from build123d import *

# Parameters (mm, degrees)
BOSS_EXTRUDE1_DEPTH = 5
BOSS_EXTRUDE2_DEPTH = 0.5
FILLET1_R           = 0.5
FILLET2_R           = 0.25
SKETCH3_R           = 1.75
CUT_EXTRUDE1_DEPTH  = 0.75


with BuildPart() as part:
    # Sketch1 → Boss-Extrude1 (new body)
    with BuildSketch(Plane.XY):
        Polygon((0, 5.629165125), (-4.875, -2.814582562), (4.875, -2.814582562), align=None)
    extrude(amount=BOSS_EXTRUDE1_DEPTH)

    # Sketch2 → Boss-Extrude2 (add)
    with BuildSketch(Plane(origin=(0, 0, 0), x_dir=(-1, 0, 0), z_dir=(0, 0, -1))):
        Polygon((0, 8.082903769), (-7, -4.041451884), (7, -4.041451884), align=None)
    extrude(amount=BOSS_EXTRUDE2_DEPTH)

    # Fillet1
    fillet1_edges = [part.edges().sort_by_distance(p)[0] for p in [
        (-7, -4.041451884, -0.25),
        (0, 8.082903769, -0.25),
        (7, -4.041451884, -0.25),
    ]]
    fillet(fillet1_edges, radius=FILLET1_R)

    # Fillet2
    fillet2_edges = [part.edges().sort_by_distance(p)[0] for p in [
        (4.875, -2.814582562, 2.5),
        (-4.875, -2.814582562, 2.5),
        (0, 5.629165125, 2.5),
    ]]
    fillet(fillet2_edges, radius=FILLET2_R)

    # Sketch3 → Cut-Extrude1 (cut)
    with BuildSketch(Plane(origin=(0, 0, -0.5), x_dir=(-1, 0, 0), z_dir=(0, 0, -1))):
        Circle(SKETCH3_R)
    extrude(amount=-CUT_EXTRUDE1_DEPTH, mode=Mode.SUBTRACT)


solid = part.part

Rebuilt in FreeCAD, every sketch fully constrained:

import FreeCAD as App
import Part
import Sketcher
from FreeCAD import Vector
Q = App.Units.Quantity


def edges_at(feature, points):
    """Names of the edges that pass closest to the given points."""
    edges = feature.Shape.Edges
    near = lambda p: min(range(len(edges)), key=lambda i: edges[i].distToShape(Part.Vertex(*p))[0])
    return sorted({f"Edge{near(p) + 1}" for p in points})

doc = App.newDocument("Part")
params = doc.addObject("Spreadsheet::Sheet", "Params")
for row, (alias, value) in enumerate([
    ("sketch1_width", "9.75 mm"),
    ("pad1_length", "5 mm"),
    ("sketch2_width", "14 mm"),
    ("pad2_length", "0.5 mm"),
    ("fillet_radius", "0.5 mm"),
    ("fillet2_radius", "0.25 mm"),
    ("sketch3_diameter", "3.5 mm"),
    ("pocket1_length", "0.75 mm"),
], start=1):
    params.set(f"A{row}", alias)
    params.set(f"B{row}", "=" + value)
    params.setAlias(f"B{row}", alias)

body = doc.addObject("PartDesign::Body", "Body")

# Sketch on XY plane
sketch1 = doc.addObject("Sketcher::SketchObject", "Sketch")
body.addObject(sketch1)
sketch1.AttachmentSupport = (doc.XY_Plane, [""])
sketch1.MapMode = "FlatFace"
sketch1.addGeometry(Part.LineSegment(Vector(0, 6, 0), Vector(-5, -3, 0)), False)
sketch1.addGeometry(Part.LineSegment(Vector(-5, -3, 0), Vector(5, -3, 0)), False)
sketch1.addGeometry(Part.LineSegment(Vector(5, -3, 0), Vector(0, 6, 0)), False)
sketch1.addConstraint(Sketcher.Constraint("Coincident", 0, 2, 1, 1))
sketch1.addConstraint(Sketcher.Constraint("Coincident", 1, 2, 2, 1))
sketch1.addConstraint(Sketcher.Constraint("Coincident", 2, 2, 0, 1))
sketch1.addConstraint(Sketcher.Constraint("Horizontal", 1))
sketch1.addConstraint(Sketcher.Constraint("PointOnObject", 2, 2, -2))
sketch1.addConstraint(Sketcher.Constraint("Equal", 0, 2))
sketch1.addConstraint(Sketcher.Constraint("Angle", 0, Q("-120 deg")))
sketch1.addConstraint(Sketcher.Constraint("DistanceX", 1, 1, 1, 2, 9.75))
sketch1.addConstraint(Sketcher.Constraint("DistanceY", 0, 2, -1, 1, 2.814583))
sketch1.setExpression("Constraints[7]", "Params.sketch1_width")
pad1 = doc.addObject("PartDesign::Pad", "Pad")
body.addObject(pad1)
pad1.Profile = sketch1
pad1.setExpression("Length", "Params.pad1_length")

# Sketch on XY plane
sketch2 = doc.addObject("Sketcher::SketchObject", "Sketch001")
body.addObject(sketch2)
sketch2.AttachmentSupport = (doc.XY_Plane, [""])
sketch2.MapMode = "FlatFace"
sketch2.addGeometry(Part.LineSegment(Vector(0, 8, 0), Vector(7, -4, 0)), False)
sketch2.addGeometry(Part.LineSegment(Vector(7, -4, 0), Vector(-7, -4, 0)), False)
sketch2.addGeometry(Part.LineSegment(Vector(-7, -4, 0), Vector(0, 8, 0)), False)
sketch2.addConstraint(Sketcher.Constraint("Coincident", 0, 2, 1, 1))
sketch2.addConstraint(Sketcher.Constraint("Coincident", 1, 2, 2, 1))
sketch2.addConstraint(Sketcher.Constraint("Coincident", 2, 2, 0, 1))
sketch2.addConstraint(Sketcher.Constraint("Horizontal", 1))
sketch2.addConstraint(Sketcher.Constraint("PointOnObject", 2, 2, -2))
sketch2.addConstraint(Sketcher.Constraint("Equal", 0, 2))
sketch2.addConstraint(Sketcher.Constraint("DistanceX", 1, 2, 1, 1, 14.0))
sketch2.addConstraint(Sketcher.Constraint("Angle", 0, Q("-60 deg")))
sketch2.addConstraint(Sketcher.Constraint("DistanceY", 0, 2, -1, 1, 4.041452))
sketch2.setExpression("Constraints[6]", "Params.sketch2_width")
pad2 = doc.addObject("PartDesign::Pad", "Pad001")
body.addObject(pad2)
pad2.Profile = sketch2
pad2.setExpression("Length", "Params.pad2_length")
pad2.Reversed = True
doc.recompute()

fillet = doc.addObject("PartDesign::Fillet", "Fillet")
body.addObject(fillet)
fillet.Base = (pad2, edges_at(pad2, [(-7, -4.041, -0.25), (0, 8.083, -0.25), (7, -4.041, -0.25)]))
fillet.setExpression("Radius", "Params.fillet_radius")
doc.recompute()

fillet2 = doc.addObject("PartDesign::Fillet", "Fillet001")
body.addObject(fillet2)
fillet2.Base = (fillet, edges_at(fillet, [(4.875, -2.815, 2.5), (-4.875, -2.815, 2.5), (0, 5.629, 2.5)]))
fillet2.setExpression("Radius", "Params.fillet2_radius")

# Sketch on XY plane
sketch3 = doc.addObject("Sketcher::SketchObject", "Sketch002")
body.addObject(sketch3)
sketch3.AttachmentSupport = (doc.XY_Plane, [""])
sketch3.MapMode = "FlatFace"
sketch3.AttachmentOffset = App.Placement(Vector(0, 0, -0.5), App.Rotation())
sketch3.addGeometry(Part.Circle(Vector(0, 0, 0), Vector(0, 0, 1), 1.8), False)
sketch3.addConstraint(Sketcher.Constraint("Coincident", 0, 3, -1, 1))
sketch3.addConstraint(Sketcher.Constraint("Diameter", 0, 3.5))
sketch3.setExpression("Constraints[1]", "Params.sketch3_diameter")
pocket1 = doc.addObject("PartDesign::Pocket", "Pocket")
body.addObject(pocket1)
pocket1.Profile = sketch3
pocket1.setExpression("Length", "Params.pocket1_length")
pocket1.Reversed = True

doc.recompute()
